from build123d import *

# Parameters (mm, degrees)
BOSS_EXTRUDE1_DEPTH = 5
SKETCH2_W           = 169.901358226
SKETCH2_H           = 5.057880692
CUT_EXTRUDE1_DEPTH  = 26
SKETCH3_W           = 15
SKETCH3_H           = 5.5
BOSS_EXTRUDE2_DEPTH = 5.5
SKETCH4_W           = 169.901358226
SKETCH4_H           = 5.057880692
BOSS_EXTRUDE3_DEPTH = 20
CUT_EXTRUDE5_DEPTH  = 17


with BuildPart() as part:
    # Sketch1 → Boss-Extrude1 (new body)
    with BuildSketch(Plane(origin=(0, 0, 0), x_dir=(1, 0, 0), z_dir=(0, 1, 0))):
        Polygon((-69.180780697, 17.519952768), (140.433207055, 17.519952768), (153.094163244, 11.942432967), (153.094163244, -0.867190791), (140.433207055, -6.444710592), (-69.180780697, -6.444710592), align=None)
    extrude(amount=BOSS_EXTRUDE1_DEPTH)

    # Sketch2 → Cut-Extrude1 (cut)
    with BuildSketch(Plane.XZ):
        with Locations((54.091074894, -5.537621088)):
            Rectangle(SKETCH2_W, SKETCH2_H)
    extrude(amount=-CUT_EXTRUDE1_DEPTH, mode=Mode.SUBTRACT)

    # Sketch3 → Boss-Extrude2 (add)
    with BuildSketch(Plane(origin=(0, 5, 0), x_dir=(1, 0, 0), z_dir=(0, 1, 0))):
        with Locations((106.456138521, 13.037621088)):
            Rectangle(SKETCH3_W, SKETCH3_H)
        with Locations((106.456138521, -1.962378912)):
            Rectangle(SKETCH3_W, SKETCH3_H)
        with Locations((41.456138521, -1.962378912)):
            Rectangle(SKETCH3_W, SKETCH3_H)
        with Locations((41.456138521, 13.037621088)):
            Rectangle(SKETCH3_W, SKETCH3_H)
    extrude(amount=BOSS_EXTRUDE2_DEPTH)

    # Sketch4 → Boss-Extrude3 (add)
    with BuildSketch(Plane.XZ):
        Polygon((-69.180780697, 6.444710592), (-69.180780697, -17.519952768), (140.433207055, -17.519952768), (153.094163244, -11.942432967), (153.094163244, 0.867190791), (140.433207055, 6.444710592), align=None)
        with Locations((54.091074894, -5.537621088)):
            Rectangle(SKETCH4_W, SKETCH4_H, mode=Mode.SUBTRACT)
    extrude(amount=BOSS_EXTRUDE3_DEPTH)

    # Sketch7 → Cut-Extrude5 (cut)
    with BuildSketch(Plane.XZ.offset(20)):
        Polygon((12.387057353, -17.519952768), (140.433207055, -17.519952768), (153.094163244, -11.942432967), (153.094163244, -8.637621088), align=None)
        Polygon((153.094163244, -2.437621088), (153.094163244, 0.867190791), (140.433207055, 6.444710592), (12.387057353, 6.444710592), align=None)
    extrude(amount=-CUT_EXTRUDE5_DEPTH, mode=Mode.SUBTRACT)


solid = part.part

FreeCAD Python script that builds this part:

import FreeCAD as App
import Part
import Sketcher
from FreeCAD import Vector


def add_polygon(sketch, points):
    """Adds a closed chain of lines whose ends are joined by coincident constraints."""
    first, n = sketch.GeometryCount, len(points)
    for a, b in zip(points, points[1:] + points[:1]):
        sketch.addGeometry(Part.LineSegment(App.Vector(*a, 0), App.Vector(*b, 0)), False)
    for i in range(n):
        sketch.addConstraint(Sketcher.Constraint("Coincident", first + i, 2, first + (i + 1) % n, 1))

doc = App.newDocument("Part")
body = doc.addObject("PartDesign::Body", "Body")

sketch1 = body.newObject("Sketcher::SketchObject", "Sketch")
sketch1.AttachmentSupport = (doc.getObject("XZ_Plane"), [""])
sketch1.MapMode = "FlatFace"
add_polygon(sketch1, [(140, -18), (-69, -18), (-69, 6), (140, 6), (153, 1), (153, -12)])
sketch1.addConstraint(Sketcher.Constraint("Horizontal", 0))
sketch1.addConstraint(Sketcher.Constraint("Vertical", 1))
sketch1.addConstraint(Sketcher.Constraint("Horizontal", 2))
sketch1.addConstraint(Sketcher.Constraint("Vertical", 4))
sketch1.addConstraint(Sketcher.Constraint("Vertical", 2, 2, 5, 2))
sketch1.addConstraint(Sketcher.Constraint("Equal", 3, 5))
sketch1.addConstraint(Sketcher.Constraint("DistanceX", 0, 2, 0, 1, 209.613988))
sketch1.addConstraint(Sketcher.Constraint("DistanceY", 1, 1, 1, 2, 23.964663))
sketch1.addConstraint(Sketcher.Constraint("DistanceY", 4, 2, 4, 1, 12.809624))
sketch1.addConstraint(Sketcher.Constraint("DistanceX", 0, 2, -1, 1, 69.180781))
sketch1.addConstraint(Sketcher.Constraint("DistanceY", -1, 1, 1, 2, 6.444711))
sketch1.addConstraint(Sketcher.Constraint("Distance", 3, 13.835047))
pad1 = body.newObject("PartDesign::Pad", "Pad")
pad1.Profile = sketch1
pad1.Length = 5
pad1.Reversed = True

sketch2 = body.newObject("Sketcher::SketchObject", "Sketch001")
sketch2.AttachmentSupport = (doc.getObject("XZ_Plane"), [""])
sketch2.MapMode = "FlatFace"
add_polygon(sketch2, [(-31, -3), (-31, -8), (139, -8), (139, -3)])
sketch2.addConstraint(Sketcher.Constraint("Vertical", 0))
sketch2.addConstraint(Sketcher.Constraint("Horizontal", 1))
sketch2.addConstraint(Sketcher.Constraint("Vertical", 2))
sketch2.addConstraint(Sketcher.Constraint("Horizontal", 3))
sketch2.addConstraint(Sketcher.Constraint("DistanceX", 1, 1, 1, 2, 169.901358))
sketch2.addConstraint(Sketcher.Constraint("DistanceY", 0, 2, 0, 1, 5.057881))
sketch2.addConstraint(Sketcher.Constraint("DistanceY", 0, 2, -1, 1, 8.066561))
sketch2.addConstraint(Sketcher.Constraint("DistanceX", 0, 2, -1, 1, 30.859604))
pocket1 = body.newObject("PartDesign::Pocket", "Pocket")
pocket1.Profile = sketch2
pocket1.Length = 26

sketch3 = body.newObject("Sketcher::SketchObject", "Sketch002")
sketch3.AttachmentSupport = (doc.getObject("XZ_Plane"), [""])
sketch3.MapMode = "FlatFace"
sketch3.AttachmentOffset = App.Placement(Vector(0, 0, -5), App.Rotation())
add_polygon(sketch3, [(99, -16), (99, -10), (114, -10), (114, -16)])
add_polygon(sketch3, [(99, -1), (99, 5), (114, 5), (114, -1)])
add_polygon(sketch3, [(34, -1), (34, 5), (49, 5), (49, -1)])
add_polygon(sketch3, [(34, -16), (34, -10), (49, -10), (49, -16)])
sketch3.addConstraint(Sketcher.Constraint("Vertical", 0))
sketch3.addConstraint(Sketcher.Constraint("Horizontal", 1))
sketch3.addConstraint(Sketcher.Constraint("Vertical", 2))
sketch3.addConstraint(Sketcher.Constraint("Horizontal", 3))
sketch3.addConstraint(Sketcher.Constraint("Vertical", 4))
sketch3.addConstraint(Sketcher.Constraint("Horizontal", 5))
sketch3.addConstraint(Sketcher.Constraint("Vertical", 6))
sketch3.addConstraint(Sketcher.Constraint("Horizontal", 7))
sketch3.addConstraint(Sketcher.Constraint("Vertical", 8))
sketch3.addConstraint(Sketcher.Constraint("Horizontal", 9))
sketch3.addConstraint(Sketcher.Constraint("Vertical", 10))
sketch3.addConstraint(Sketcher.Constraint("Horizontal", 11))
sketch3.addConstraint(Sketcher.Constraint("Vertical", 12))
sketch3.addConstraint(Sketcher.Constraint("Horizontal", 13))
sketch3.addConstraint(Sketcher.Constraint("Vertical", 14))
sketch3.addConstraint(Sketcher.Constraint("Horizontal", 15))
sketch3.addConstraint(Sketcher.Constraint("Horizontal", 5, 2, 8, 2))
sketch3.addConstraint(Sketcher.Constraint("Horizontal", 7, 2, 10, 2))
sketch3.addConstraint(Sketcher.Constraint("Horizontal", 1, 2, 12, 2))
sketch3.addConstraint(Sketcher.Constraint("Horizontal", 3, 2, 14, 2))
sketch3.addConstraint(Sketcher.Constraint("Vertical", 3, 2, 4, 2))
sketch3.addConstraint(Sketcher.Constraint("Vertical", 2, 2, 5, 2))
sketch3.addConstraint(Sketcher.Constraint("Vertical", 11, 2, 12, 2))
sketch3.addConstraint(Sketcher.Constraint("Vertical", 10, 2, 13, 2))
sketch3.addConstraint(Sketcher.Constraint("Equal", 7, 9))
sketch3.addConstraint(Sketcher.Constraint("Equal", 2, 4))
sketch3.addConstraint(Sketcher.Constraint("DistanceX", 1, 1, 1, 2, 15.0))
sketch3.addConstraint(Sketcher.Constraint("DistanceY", 0, 1, 0, 2, 5.5))
sketch3.addConstraint(Sketcher.Constraint("DistanceY", 0, 2, 4, 2, 15.0))
sketch3.addConstraint(Sketcher.Constraint("DistanceX", 8, 2, 4, 2, 65.0))
sketch3.addConstraint(Sketcher.Constraint("DistanceX", -1, 1, 0, 2, 98.956139))
sketch3.addConstraint(Sketcher.Constraint("DistanceY", 0, 2, -1, 1, 10.287621))
pad2 = body.newObject("PartDesign::Pad", "Pad001")
pad2.Profile = sketch3
pad2.Length = 5.5
pad2.Reversed = True

sketch4 = body.newObject("Sketcher::SketchObject", "Sketch003")
sketch4.AttachmentSupport = (doc.getObject("XZ_Plane"), [""])
sketch4.MapMode = "FlatFace"
add_polygon(sketch4, [(-69, 6), (-69, -18), (140, -18), (153, -12), (153, 1), (140, 6)])
add_polygon(sketch4, [(139, -8), (-31, -8), (-31, -3), (139, -3)])
sketch4.addConstraint(Sketcher.Constraint("Vertical", 0))
sketch4.addConstraint(Sketcher.Constraint("Horizontal", 1))
sketch4.addConstraint(Sketcher.Constraint("Vertical", 3))
sketch4.addConstraint(Sketcher.Constraint("Horizontal", 5))
sketch4.addConstraint(Sketcher.Constraint("Horizontal", 6))
sketch4.addConstraint(Sketcher.Constraint("Vertical", 7))
sketch4.addConstraint(Sketcher.Constraint("Horizontal", 8))
sketch4.addConstraint(Sketcher.Constraint("Vertical", 9))
sketch4.addConstraint(Sketcher.Constraint("Vertical", 1, 2, 4, 2))
sketch4.addConstraint(Sketcher.Constraint("Equal", 2, 4))
sketch4.addConstraint(Sketcher.Constraint("DistanceX", 6, 2, 6, 1, 169.901358))
sketch4.addConstraint(Sketcher.Constraint("DistanceY", 7, 1, 7, 2, 5.057881))
sketch4.addConstraint(Sketcher.Constraint("DistanceX", 1, 1, 1, 2, 209.613988))
sketch4.addConstraint(Sketcher.Constraint("DistanceY", 0, 2, 0, 1, 23.964663))
sketch4.addConstraint(Sketcher.Constraint("DistanceY", 3, 1, 3, 2, 12.809624))
sketch4.addConstraint(Sketcher.Constraint("DistanceX", 0, 2, -1, 1, 69.180781))
sketch4.addConstraint(Sketcher.Constraint("DistanceY", -1, 1, 3, 2, 0.867191))
sketch4.addConstraint(Sketcher.Constraint("DistanceY", 6, 2, -1, 1, 8.066561))
sketch4.addConstraint(Sketcher.Constraint("DistanceX", 6, 2, 1, 2, 171.292811))
sketch4.addConstraint(Sketcher.Constraint("DistanceX", 8, 2, 3, 2, 14.052409))
pad3 = body.newObject("PartDesign::Pad", "Pad002")
pad3.Profile = sketch4
pad3.Length = 20

sketch5 = body.newObject("Sketcher::SketchObject", "Sketch004")
sketch5.AttachmentSupport = (doc.getObject("XZ_Plane"), [""])
sketch5.MapMode = "FlatFace"
sketch5.AttachmentOffset = App.Placement(Vector(0, 0, 20), App.Rotation())
add_polygon(sketch5, [(12.4, -17.5), (140.4, -17.5), (153.1, -11.9), (153.1, -8.6)])
add_polygon(sketch5, [(153.1, -2.4), (153.1, 0.9), (140.4, 6.4), (12.4, 6.4)])
sketch5.addConstraint(Sketcher.Constraint("Horizontal", 0))
sketch5.addConstraint(Sketcher.Constraint("Vertical", 2))
sketch5.addConstraint(Sketcher.Constraint("Vertical", 4))
sketch5.addConstraint(Sketcher.Constraint("Horizontal", 6))
sketch5.addConstraint(Sketcher.Constraint("Vertical", 2, 2, 4, 2))
sketch5.addConstraint(Sketcher.Constraint("Vertical", 0, 2, 5, 2))
sketch5.addConstraint(Sketcher.Constraint("Vertical", 3, 2, 6, 2))
sketch5.addConstraint(Sketcher.Constraint("Equal", 2, 4))
sketch5.addConstraint(Sketcher.Constraint("Equal", 1, 5))
sketch5.addConstraint(Sketcher.Constraint("DistanceY", 2, 2, 7, 2, 6.2))
sketch5.addConstraint(Sketcher.Constraint("DistanceX", 0, 1, 0, 2, 128.04615))
sketch5.addConstraint(Sketcher.Constraint("DistanceY", 2, 1, 2, 2, 3.304812))
sketch5.addConstraint(Sketcher.Constraint("Distance", 3, 140.987182))
sketch5.addConstraint(Sketcher.Constraint("DistanceY", 2, 2, -1, 1, 8.637621))
sketch5.addConstraint(Sketcher.Constraint("DistanceY", -1, 1, 5, 2, 6.444711))
sketch5.addConstraint(Sketcher.Constraint("DistanceX", -1, 1, 0, 2, 140.433207))
pocket2 = body.newObject("PartDesign::Pocket", "Pocket001")
pocket2.Profile = sketch5
pocket2.Length = 17

doc.recompute()
